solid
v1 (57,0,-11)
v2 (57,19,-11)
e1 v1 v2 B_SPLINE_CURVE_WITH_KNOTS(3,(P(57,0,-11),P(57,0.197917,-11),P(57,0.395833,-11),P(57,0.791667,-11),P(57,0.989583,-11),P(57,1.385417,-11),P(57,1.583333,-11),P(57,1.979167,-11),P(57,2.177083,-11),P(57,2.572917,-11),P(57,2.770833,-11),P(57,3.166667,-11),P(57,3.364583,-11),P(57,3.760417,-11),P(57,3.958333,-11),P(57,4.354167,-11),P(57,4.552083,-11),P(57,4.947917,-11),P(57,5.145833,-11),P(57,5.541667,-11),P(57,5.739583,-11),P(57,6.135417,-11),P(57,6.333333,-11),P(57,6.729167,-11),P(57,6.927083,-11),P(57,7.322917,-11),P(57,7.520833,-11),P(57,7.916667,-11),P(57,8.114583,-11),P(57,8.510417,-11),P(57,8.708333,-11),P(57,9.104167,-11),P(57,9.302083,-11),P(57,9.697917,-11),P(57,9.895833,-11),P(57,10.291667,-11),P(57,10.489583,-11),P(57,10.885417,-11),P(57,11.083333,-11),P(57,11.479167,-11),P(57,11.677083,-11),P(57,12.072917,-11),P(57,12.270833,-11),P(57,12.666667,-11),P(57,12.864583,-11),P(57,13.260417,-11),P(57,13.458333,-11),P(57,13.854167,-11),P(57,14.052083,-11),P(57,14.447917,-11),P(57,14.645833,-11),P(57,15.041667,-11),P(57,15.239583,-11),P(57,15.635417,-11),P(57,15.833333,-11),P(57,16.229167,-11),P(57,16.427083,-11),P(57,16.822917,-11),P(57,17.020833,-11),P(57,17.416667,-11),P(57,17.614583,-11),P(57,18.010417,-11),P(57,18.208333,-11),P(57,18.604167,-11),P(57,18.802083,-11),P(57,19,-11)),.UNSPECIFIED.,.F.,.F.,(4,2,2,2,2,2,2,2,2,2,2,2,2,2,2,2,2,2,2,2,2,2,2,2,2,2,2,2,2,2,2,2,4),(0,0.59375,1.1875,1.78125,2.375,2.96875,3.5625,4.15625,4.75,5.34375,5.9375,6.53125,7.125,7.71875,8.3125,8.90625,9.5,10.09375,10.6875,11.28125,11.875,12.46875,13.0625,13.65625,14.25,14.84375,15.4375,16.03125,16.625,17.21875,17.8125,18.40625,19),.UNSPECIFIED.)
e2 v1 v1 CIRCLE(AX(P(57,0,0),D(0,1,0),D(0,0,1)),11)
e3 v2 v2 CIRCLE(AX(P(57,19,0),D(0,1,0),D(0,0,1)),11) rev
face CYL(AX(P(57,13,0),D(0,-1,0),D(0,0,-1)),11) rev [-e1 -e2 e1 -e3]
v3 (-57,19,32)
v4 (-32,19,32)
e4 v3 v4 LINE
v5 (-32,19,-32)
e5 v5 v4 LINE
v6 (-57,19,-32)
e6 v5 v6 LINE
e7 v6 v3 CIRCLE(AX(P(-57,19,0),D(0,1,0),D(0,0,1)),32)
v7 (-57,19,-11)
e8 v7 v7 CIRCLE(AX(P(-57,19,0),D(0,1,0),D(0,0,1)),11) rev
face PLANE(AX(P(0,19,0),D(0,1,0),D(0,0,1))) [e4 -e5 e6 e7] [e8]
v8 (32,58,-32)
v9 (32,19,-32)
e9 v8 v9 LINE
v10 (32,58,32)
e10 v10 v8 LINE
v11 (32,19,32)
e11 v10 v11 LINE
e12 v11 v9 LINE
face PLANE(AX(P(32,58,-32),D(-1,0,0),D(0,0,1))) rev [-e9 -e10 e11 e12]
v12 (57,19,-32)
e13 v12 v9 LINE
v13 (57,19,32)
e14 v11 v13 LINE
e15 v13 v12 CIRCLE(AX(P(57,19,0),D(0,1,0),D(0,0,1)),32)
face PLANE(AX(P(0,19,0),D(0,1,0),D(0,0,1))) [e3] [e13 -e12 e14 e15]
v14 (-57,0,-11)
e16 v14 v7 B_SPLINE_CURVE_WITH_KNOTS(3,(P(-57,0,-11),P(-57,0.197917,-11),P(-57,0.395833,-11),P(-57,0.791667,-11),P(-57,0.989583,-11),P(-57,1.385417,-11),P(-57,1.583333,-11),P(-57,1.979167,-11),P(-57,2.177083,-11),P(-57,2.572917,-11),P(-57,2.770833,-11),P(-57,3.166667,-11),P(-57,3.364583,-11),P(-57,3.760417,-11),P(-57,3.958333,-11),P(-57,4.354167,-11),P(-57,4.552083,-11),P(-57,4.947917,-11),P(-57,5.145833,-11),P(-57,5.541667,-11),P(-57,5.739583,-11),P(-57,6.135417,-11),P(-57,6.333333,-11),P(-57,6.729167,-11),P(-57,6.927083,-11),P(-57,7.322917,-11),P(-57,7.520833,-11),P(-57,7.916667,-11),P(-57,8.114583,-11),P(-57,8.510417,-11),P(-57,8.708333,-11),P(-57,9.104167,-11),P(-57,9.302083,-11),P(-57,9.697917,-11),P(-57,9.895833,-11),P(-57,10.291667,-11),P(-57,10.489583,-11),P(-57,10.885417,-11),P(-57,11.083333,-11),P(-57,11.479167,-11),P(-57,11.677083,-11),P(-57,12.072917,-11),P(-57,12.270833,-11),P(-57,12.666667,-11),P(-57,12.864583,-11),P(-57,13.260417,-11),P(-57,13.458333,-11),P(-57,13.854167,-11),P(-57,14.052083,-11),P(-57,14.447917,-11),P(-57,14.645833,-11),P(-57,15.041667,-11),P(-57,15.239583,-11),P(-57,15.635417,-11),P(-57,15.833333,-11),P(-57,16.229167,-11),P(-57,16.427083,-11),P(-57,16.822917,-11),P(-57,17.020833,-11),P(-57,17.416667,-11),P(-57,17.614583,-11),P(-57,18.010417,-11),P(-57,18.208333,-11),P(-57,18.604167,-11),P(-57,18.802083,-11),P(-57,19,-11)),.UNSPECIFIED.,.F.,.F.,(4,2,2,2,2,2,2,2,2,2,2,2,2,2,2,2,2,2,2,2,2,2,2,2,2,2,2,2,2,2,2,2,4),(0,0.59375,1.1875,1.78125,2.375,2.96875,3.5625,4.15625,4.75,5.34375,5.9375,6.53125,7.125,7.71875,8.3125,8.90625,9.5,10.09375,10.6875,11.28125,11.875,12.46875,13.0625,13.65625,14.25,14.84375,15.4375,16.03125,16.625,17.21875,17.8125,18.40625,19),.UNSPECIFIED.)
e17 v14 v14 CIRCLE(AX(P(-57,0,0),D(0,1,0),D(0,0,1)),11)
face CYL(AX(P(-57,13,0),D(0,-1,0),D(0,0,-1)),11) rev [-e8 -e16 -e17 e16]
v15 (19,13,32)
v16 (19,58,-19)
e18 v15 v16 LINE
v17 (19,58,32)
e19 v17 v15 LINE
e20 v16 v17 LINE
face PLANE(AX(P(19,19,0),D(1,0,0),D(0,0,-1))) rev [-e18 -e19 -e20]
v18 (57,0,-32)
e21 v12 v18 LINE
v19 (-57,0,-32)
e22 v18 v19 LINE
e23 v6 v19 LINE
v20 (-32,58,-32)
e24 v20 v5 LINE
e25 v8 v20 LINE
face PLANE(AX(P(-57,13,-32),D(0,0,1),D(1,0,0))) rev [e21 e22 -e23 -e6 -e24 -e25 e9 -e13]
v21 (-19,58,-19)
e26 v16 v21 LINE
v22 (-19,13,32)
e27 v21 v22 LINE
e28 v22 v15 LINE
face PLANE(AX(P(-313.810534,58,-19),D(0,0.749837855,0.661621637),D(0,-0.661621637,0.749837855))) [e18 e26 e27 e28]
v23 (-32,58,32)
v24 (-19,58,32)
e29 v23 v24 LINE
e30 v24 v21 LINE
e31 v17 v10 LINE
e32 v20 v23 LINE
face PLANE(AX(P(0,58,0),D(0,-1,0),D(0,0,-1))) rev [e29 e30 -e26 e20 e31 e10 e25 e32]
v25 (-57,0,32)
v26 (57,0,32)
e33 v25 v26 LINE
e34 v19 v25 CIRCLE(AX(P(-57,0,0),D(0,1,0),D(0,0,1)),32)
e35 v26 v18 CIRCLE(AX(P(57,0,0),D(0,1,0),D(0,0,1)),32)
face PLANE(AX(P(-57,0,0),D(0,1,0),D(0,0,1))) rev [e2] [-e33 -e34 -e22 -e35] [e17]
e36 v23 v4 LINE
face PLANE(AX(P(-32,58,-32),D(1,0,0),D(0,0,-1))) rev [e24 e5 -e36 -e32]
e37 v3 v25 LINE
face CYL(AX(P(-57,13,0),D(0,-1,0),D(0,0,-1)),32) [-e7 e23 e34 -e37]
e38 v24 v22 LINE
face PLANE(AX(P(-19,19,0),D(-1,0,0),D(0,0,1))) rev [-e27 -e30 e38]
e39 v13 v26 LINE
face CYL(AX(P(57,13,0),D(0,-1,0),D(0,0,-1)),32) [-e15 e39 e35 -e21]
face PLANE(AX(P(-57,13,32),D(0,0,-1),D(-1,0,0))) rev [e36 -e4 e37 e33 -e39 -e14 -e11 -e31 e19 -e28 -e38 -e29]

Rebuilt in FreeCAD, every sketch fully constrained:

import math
import FreeCAD as App
import Part
import Sketcher


def add_polygon(sketch, points):
    """Adds a closed chain of lines whose ends are joined by coincident constraints."""
    first, n = sketch.GeometryCount, len(points)
    for a, b in zip(points, points[1:] + points[:1]):
        sketch.addGeometry(Part.LineSegment(App.Vector(*a, 0), App.Vector(*b, 0)), False)
    for i in range(n):
        sketch.addConstraint(Sketcher.Constraint("Coincident", first + i, 2, first + (i + 1) % n, 1))

doc = App.newDocument("Part")
params = doc.addObject("Spreadsheet::Sheet", "Params")
for row, (alias, value) in enumerate([
    ("sketch1_diameter", "22 mm"),
    ("sketch1_radius", "32 mm"),
    ("sketch1_width", "114 mm"),
    ("pad1_length", "13 mm"),
    ("sketch2_width", "38 mm"),
    ("sketch2_height", "51 mm"),
    ("pad2_length", "45 mm"),
    ("sketch4_diameter", "22 mm"),
    ("sketch4_radius", "32 mm"),
    ("sketch4_width", "38 mm"),
    ("sketch4_height", "51 mm"),
    ("pad3_length", "6 mm"),
    ("sketch5_width", "64 mm"),
    ("sketch5_width2", "13 mm"),
    ("sketch5_height", "51 mm"),
    ("pad4_length", "39 mm"),
], start=1):
    params.set(f"A{row}", alias)
    params.set(f"B{row}", "=" + value)
    params.setAlias(f"B{row}", alias)

body = doc.addObject("PartDesign::Body", "Body")

# Sketch on XZ plane
sketch1 = body.newObject("Sketcher::SketchObject", "Sketch")
sketch1.AttachmentSupport = (doc.getObject("XZ_Plane"), [""])
sketch1.MapMode = "FlatFace"
sketch1.addGeometry(Part.LineSegment(App.Vector(57, -32, 0), App.Vector(-57, -32, 0)), False)
sketch1.addGeometry(Part.ArcOfCircle(Part.Circle(App.Vector(-57, 0, 0), App.Vector(0, 0, 1), 32), math.radians(90), math.radians(270)), False)
sketch1.addGeometry(Part.LineSegment(App.Vector(-57, 32, 0), App.Vector(57, 32, 0)), False)
sketch1.addGeometry(Part.ArcOfCircle(Part.Circle(App.Vector(57, 0, 0), App.Vector(0, 0, 1), 32), math.radians(-90), math.radians(90)), False)
sketch1.addGeometry(Part.Circle(App.Vector(57, 0, 0), App.Vector(0, 0, 1), 11), False)
sketch1.addGeometry(Part.Circle(App.Vector(-57, 0, 0), App.Vector(0, 0, 1), 11), False)
sketch1.addConstraint(Sketcher.Constraint("Tangent", 0, 2, 1, 2))
sketch1.addConstraint(Sketcher.Constraint("Tangent", 1, 1, 2, 1))
sketch1.addConstraint(Sketcher.Constraint("Tangent", 2, 2, 3, 2))
sketch1.addConstraint(Sketcher.Constraint("Tangent", 3, 1, 0, 1))
sketch1.addConstraint(Sketcher.Constraint("Horizontal", 0))
sketch1.addConstraint(Sketcher.Constraint("Horizontal", 2))
sketch1.addConstraint(Sketcher.Constraint("Coincident", 4, 3, 3, 3))
sketch1.addConstraint(Sketcher.Constraint("Coincident", 5, 3, 1, 3))
sketch1.addConstraint(Sketcher.Constraint("Equal", 4, 5))
sketch1.addConstraint(Sketcher.Constraint("Symmetric", 1, 3, 3, 3, -1, 1))
sketch1.addConstraint(Sketcher.Constraint("Diameter", 4, 22.0))
sketch1.addConstraint(Sketcher.Constraint("Radius", 1, 32.0))
sketch1.addConstraint(Sketcher.Constraint("DistanceX", 0, 2, 0, 1, 114.0))
sketch1.setExpression("Constraints[10]", "Params.sketch1_diameter")
sketch1.setExpression("Constraints[11]", "Params.sketch1_radius")
sketch1.setExpression("Constraints[12]", "Params.sketch1_width")
pad1 = body.newObject("PartDesign::Pad", "Pad")
pad1.Profile = sketch1
pad1.setExpression("Length", "Params.pad1_length")
pad1.Reversed = True

# Sketch on XZ plane
sketch2 = body.newObject("Sketcher::SketchObject", "Sketch001")
sketch2.AttachmentSupport = (doc.getObject("XZ_Plane"), [""])
sketch2.MapMode = "FlatFace"
sketch2.AttachmentOffset = App.Placement(App.Vector(0, 0, -13), App.Rotation())
add_polygon(sketch2, [(-19, -19), (-19, 32), (19, 32), (19, -19)])  # lines 0-3
sketch2.addConstraint(Sketcher.Constraint("Vertical", 0))
sketch2.addConstraint(Sketcher.Constraint("Horizontal", 1))
sketch2.addConstraint(Sketcher.Constraint("Vertical", 2))
sketch2.addConstraint(Sketcher.Constraint("Horizontal", 3))
sketch2.addConstraint(Sketcher.Constraint("DistanceX", 1, 1, 1, 2, 38.0))
sketch2.addConstraint(Sketcher.Constraint("DistanceY", 0, 1, 0, 2, 51.0))
sketch2.addConstraint(Sketcher.Constraint("DistanceX", 0, 2, -1, 1, 19.0))
sketch2.addConstraint(Sketcher.Constraint("DistanceY", -1, 1, 0, 2, 32.0))
sketch2.setExpression("Constraints[8]", "Params.sketch2_width")
sketch2.setExpression("Constraints[9]", "Params.sketch2_height")
pad2 = body.newObject("PartDesign::Pad", "Pad001")
pad2.Profile = sketch2
pad2.setExpression("Length", "Params.pad2_length")
pad2.Reversed = True

# Sketch on YZ plane
sketch3 = body.newObject("Sketcher::SketchObject", "Sketch002")
sketch3.AttachmentSupport = (doc.getObject("YZ_Plane"), [""])
sketch3.MapMode = "FlatFace"
sketch3.AttachmentOffset = App.Placement(App.Vector(0, 0, -19), App.Rotation())
add_polygon(sketch3, [(168, -144), (58, -19), (13, 32), (-97, 157), (153, 377), (418, 76)])  # lines 0-5
sketch3.addConstraint(Sketcher.Constraint("Parallel", 0, 1))
sketch3.addConstraint(Sketcher.Constraint("Parallel", 1, 2))
sketch3.addConstraint(Sketcher.Constraint("Perpendicular", 2, 3))
sketch3.addConstraint(Sketcher.Constraint("Perpendicular", 3, 4))
sketch3.addConstraint(Sketcher.Constraint("Perpendicular", 4, 5))
sketch3.addConstraint(Sketcher.Constraint("Equal", 0, 2))
sketch3.addConstraint(Sketcher.Constraint("DistanceX", -1, 1, 0, 2, 58.0))
sketch3.addConstraint(Sketcher.Constraint("DistanceY", 0, 2, -1, 1, 19.0))
sketch3.addConstraint(Sketcher.Constraint("DistanceX", -1, 1, 1, 2, 13.0))
sketch3.addConstraint(Sketcher.Constraint("DistanceY", -1, 1, 1, 2, 32.0))
sketch3.addConstraint(Sketcher.Constraint("DistanceX", 2, 2, 4, 2, 514.941599))
sketch3.addConstraint(Sketcher.Constraint("DistanceY", 5, 2, 3, 2, 520.941599))
pocket1 = body.newObject("PartDesign::Pocket", "Pocket")
pocket1.Profile = sketch3
pocket1.Type = "ThroughAll"
pocket1.Midplane = True

# Sketch on XZ plane
sketch4 = body.newObject("Sketcher::SketchObject", "Sketch003")
sketch4.AttachmentSupport = (doc.getObject("XZ_Plane"), [""])
sketch4.MapMode = "FlatFace"
sketch4.AttachmentOffset = App.Placement(App.Vector(0, 0, -13), App.Rotation())
sketch4.addGeometry(Part.ArcOfCircle(Part.Circle(App.Vector(-57, 0, 0), App.Vector(0, 0, 1), 32), math.radians(90), math.radians(270)), False)
sketch4.addGeometry(Part.LineSegment(App.Vector(-57, 32, 0), App.Vector(-19, 32, 0)), False)
sketch4.addGeometry(Part.LineSegment(App.Vector(-19, 32, 0), App.Vector(-19, -19, 0)), False)
sketch4.addGeometry(Part.LineSegment(App.Vector(-19, -19, 0), App.Vector(19, -19, 0)), False)
sketch4.addGeometry(Part.LineSegment(App.Vector(19, -19, 0), App.Vector(19, 32, 0)), False)
sketch4.addGeometry(Part.LineSegment(App.Vector(19, 32, 0), App.Vector(57, 32, 0)), False)
sketch4.addGeometry(Part.ArcOfCircle(Part.Circle(App.Vector(57, 0, 0), App.Vector(0, 0, 1), 32), math.radians(-90), math.radians(90)), False)
sketch4.addGeometry(Part.LineSegment(App.Vector(57, -32, 0), App.Vector(-57, -32, 0)), False)
sketch4.addGeometry(Part.Circle(App.Vector(-57, 0, 0), App.Vector(0, 0, 1), 11), False)
sketch4.addGeometry(Part.Circle(App.Vector(57, 0, 0), App.Vector(0, 0, 1), 11), False)
sketch4.addConstraint(Sketcher.Constraint("Tangent", 0, 1, 1, 1))
sketch4.addConstraint(Sketcher.Constraint("Coincident", 1, 2, 2, 1))
sketch4.addConstraint(Sketcher.Constraint("Coincident", 2, 2, 3, 1))
sketch4.addConstraint(Sketcher.Constraint("Coincident", 3, 2, 4, 1))
sketch4.addConstraint(Sketcher.Constraint("Coincident", 4, 2, 5, 1))
sketch4.addConstraint(Sketcher.Constraint("Tangent", 5, 2, 6, 2))
sketch4.addConstraint(Sketcher.Constraint("Tangent", 6, 1, 7, 1))
sketch4.addConstraint(Sketcher.Constraint("Tangent", 7, 2, 0, 2))
sketch4.addConstraint(Sketcher.Constraint("Horizontal", 1))
sketch4.addConstraint(Sketcher.Constraint("Vertical", 2))
sketch4.addConstraint(Sketcher.Constraint("Horizontal", 3))
sketch4.addConstraint(Sketcher.Constraint("Vertical", 4))
sketch4.addConstraint(Sketcher.Constraint("Horizontal", 5))
sketch4.addConstraint(Sketcher.Constraint("Horizontal", 7))
sketch4.addConstraint(Sketcher.Constraint("Coincident", 8, 3, 0, 3))
sketch4.addConstraint(Sketcher.Constraint("Coincident", 9, 3, 6, 3))
sketch4.addConstraint(Sketcher.Constraint("Equal", 0, 6))
sketch4.addConstraint(Sketcher.Constraint("Equal", 8, 9))
sketch4.addConstraint(Sketcher.Constraint("Symmetric", 0, 3, 6, 3, -1, 1))
sketch4.addConstraint(Sketcher.Constraint("Equal", 1, 3))
sketch4.addConstraint(Sketcher.Constraint("Equal", 3, 5))
sketch4.addConstraint(Sketcher.Constraint("Diameter", 8, 22.0))
sketch4.addConstraint(Sketcher.Constraint("Radius", 0, 32.0))
sketch4.addConstraint(Sketcher.Constraint("DistanceX", 1, 1, 1, 2, 38.0))
sketch4.addConstraint(Sketcher.Constraint("DistanceY", 2, 2, 2, 1, 51.0))
sketch4.setExpression("Constraints[21]", "Params.sketch4_diameter")
sketch4.setExpression("Constraints[22]", "Params.sketch4_radius")
sketch4.setExpression("Constraints[23]", "Params.sketch4_width")
sketch4.setExpression("Constraints[24]", "Params.sketch4_height")
pad3 = body.newObject("PartDesign::Pad", "Pad002")
pad3.Profile = sketch4
pad3.setExpression("Length", "Params.pad3_length")
pad3.Reversed = True

# Sketch on XZ plane
sketch5 = body.newObject("Sketcher::SketchObject", "Sketch004")
sketch5.AttachmentSupport = (doc.getObject("XZ_Plane"), [""])
sketch5.MapMode = "FlatFace"
sketch5.AttachmentOffset = App.Placement(App.Vector(0, 0, -19), App.Rotation())
add_polygon(sketch5, [(32, -32), (-32, -32), (-32, 32), (-19, 32), (-19, -19), (19, -19), (19, 32), (32, 32)])  # lines 0-7
sketch5.addConstraint(Sketcher.Constraint("Horizontal", 0))
sketch5.addConstraint(Sketcher.Constraint("Vertical", 1))
sketch5.addConstraint(Sketcher.Constraint("Horizontal", 2))
sketch5.addConstraint(Sketcher.Constraint("Vertical", 3))
sketch5.addConstraint(Sketcher.Constraint("Horizontal", 4))
sketch5.addConstraint(Sketcher.Constraint("Vertical", 5))
sketch5.addConstraint(Sketcher.Constraint("Horizontal", 6))
sketch5.addConstraint(Sketcher.Constraint("Vertical", 7))
sketch5.addConstraint(Sketcher.Constraint("Symmetric", 0, 2, 6, 2, -1, 1))
sketch5.addConstraint(Sketcher.Constraint("Symmetric", 2, 2, 5, 2, -2))
sketch5.addConstraint(Sketcher.Constraint("Equal", 0, 1))
sketch5.addConstraint(Sketcher.Constraint("DistanceX", 0, 2, 0, 1, 64.0))
sketch5.addConstraint(Sketcher.Constraint("DistanceX", 2, 1, 2, 2, 13.0))
sketch5.addConstraint(Sketcher.Constraint("DistanceY", 3, 2, 3, 1, 51.0))
sketch5.setExpression("Constraints[19]", "Params.sketch5_width")
sketch5.setExpression("Constraints[20]", "Params.sketch5_width2")
sketch5.setExpression("Constraints[21]", "Params.sketch5_height")
pad4 = body.newObject("PartDesign::Pad", "Pad003")
pad4.Profile = sketch5
pad4.setExpression("Length", "Params.pad4_length")
pad4.Reversed = True

doc.recompute()
